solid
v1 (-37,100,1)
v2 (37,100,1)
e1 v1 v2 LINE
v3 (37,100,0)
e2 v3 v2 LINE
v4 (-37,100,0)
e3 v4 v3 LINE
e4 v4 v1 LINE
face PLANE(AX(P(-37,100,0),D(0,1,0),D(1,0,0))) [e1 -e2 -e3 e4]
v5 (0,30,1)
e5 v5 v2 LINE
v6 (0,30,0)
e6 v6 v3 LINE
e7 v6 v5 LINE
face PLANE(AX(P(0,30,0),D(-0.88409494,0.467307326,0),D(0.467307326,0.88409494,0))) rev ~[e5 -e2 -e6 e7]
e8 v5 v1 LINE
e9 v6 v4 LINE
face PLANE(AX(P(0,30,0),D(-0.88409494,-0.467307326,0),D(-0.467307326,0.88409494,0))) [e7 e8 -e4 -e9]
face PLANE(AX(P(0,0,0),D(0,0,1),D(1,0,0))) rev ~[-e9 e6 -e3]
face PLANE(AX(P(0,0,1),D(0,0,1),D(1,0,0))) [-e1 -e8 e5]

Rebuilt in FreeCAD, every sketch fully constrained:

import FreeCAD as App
import Part
import Sketcher
from FreeCAD import Vector
Q = App.Units.Quantity


def add_polygon(sketch, points):
    """Adds a closed chain of lines whose ends are joined by coincident constraints."""
    first, n = sketch.GeometryCount, len(points)
    for a, b in zip(points, points[1:] + points[:1]):
        sketch.addGeometry(Part.LineSegment(App.Vector(*a, 0), App.Vector(*b, 0)), False)
    for i in range(n):
        sketch.addConstraint(Sketcher.Constraint("Coincident", first + i, 2, first + (i + 1) % n, 1))

doc = App.newDocument("Part")
params = doc.addObject("Spreadsheet::Sheet", "Params")
for row, (alias, value) in enumerate([
    ("sketch1_width", "74 mm"),
    ("pad1_length", "1 mm"),
], start=1):
    params.set(f"A{row}", alias)
    params.set(f"B{row}", "=" + value)
    params.setAlias(f"B{row}", alias)

body = doc.addObject("PartDesign::Body", "Body")

# Sketch on XY plane
sketch1 = body.newObject("Sketcher::SketchObject", "Sketch")
sketch1.AttachmentSupport = (doc.getObject("XY_Plane"), [""])
sketch1.MapMode = "FlatFace"
add_polygon(sketch1, [(0, 30), (37, 100), (-37, 100)])  # lines 0-2
sketch1.addConstraint([
    Sketcher.Constraint("Horizontal", 1),
    Sketcher.Constraint("PointOnObject", 2, 2, -2),
    Sketcher.Constraint("Equal", 0, 2),
    Sketcher.Constraint("DistanceX", 1, 2, 1, 1, Q("74 mm")),
    Sketcher.Constraint("DistanceY", -1, 1, 0, 2, Q("100 mm")),
    Sketcher.Constraint("DistanceY", -1, 1, 2, 2, Q("30 mm")),
])
sketch1.setExpression("Constraints[6]", "Params.sketch1_width")
pad1 = body.newObject("PartDesign::Pad", "Pad")
pad1.Profile = sketch1
pad1.setExpression("Length", "Params.pad1_length")

doc.recompute()
